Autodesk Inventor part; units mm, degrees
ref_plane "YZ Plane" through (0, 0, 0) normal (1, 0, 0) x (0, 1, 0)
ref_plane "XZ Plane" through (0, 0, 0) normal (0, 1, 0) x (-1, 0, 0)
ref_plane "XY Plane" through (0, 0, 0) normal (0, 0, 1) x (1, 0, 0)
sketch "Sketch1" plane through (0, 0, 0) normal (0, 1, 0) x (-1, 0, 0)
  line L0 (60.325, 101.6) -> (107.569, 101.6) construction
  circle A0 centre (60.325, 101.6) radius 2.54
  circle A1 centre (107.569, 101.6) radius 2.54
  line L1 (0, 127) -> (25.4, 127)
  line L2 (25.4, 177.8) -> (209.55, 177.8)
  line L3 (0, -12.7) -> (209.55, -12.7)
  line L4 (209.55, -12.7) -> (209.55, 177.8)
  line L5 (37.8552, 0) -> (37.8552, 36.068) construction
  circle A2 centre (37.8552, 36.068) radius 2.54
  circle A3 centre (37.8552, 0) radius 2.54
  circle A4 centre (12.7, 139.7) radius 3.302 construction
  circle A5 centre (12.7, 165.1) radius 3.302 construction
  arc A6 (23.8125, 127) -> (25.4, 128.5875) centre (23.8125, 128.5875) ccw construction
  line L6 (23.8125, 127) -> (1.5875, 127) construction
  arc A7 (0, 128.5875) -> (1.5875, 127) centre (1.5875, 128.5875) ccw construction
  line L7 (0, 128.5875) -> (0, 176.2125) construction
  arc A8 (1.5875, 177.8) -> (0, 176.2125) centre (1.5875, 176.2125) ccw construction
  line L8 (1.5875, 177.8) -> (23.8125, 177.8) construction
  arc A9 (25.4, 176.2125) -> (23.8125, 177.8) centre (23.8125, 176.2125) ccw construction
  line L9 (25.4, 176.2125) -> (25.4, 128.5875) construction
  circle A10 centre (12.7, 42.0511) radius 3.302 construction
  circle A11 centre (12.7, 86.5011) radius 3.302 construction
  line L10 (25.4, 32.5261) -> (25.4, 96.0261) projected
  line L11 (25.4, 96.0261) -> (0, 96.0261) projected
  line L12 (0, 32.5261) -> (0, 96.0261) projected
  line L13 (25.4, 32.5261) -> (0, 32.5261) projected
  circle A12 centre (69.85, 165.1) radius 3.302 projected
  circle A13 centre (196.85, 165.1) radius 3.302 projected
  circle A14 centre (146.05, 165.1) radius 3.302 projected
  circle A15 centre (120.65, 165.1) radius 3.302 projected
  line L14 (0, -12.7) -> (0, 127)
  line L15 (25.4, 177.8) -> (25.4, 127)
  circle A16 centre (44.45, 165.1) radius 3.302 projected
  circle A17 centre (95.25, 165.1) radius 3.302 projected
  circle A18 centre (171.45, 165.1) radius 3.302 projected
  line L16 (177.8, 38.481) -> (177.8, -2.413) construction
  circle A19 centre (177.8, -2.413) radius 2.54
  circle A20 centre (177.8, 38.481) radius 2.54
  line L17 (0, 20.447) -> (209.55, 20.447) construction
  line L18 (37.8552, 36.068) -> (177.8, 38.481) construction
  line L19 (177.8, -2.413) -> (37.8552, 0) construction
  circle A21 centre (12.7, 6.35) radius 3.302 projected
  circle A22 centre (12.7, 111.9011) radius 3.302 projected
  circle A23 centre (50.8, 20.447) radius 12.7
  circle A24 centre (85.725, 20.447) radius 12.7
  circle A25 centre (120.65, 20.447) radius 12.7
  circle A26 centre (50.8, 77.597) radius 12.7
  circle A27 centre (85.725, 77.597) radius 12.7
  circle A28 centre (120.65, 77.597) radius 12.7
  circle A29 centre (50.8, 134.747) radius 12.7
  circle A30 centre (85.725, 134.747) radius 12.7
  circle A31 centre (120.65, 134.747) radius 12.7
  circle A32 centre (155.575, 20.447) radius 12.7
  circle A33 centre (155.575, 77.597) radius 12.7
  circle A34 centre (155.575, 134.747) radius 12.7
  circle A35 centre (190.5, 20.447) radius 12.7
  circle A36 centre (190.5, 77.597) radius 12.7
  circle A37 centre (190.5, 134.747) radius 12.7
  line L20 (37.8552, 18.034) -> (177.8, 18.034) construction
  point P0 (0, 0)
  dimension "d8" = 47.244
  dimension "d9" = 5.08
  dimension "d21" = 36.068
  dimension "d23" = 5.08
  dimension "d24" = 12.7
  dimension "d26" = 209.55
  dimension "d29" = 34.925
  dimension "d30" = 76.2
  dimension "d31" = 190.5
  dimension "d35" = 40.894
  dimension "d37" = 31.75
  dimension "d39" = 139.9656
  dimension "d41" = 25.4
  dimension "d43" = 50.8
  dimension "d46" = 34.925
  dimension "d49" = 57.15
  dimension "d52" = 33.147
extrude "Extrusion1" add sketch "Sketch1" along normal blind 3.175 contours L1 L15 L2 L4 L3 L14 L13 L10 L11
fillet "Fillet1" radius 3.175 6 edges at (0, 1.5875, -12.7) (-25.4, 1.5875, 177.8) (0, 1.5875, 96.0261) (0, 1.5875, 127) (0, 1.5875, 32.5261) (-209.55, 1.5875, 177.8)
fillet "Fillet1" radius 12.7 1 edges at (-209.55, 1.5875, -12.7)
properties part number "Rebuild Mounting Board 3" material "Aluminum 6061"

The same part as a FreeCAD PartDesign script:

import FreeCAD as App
import Part
import Sketcher
Q = App.Units.Quantity


def edges_at(feature, points):
    """Names of the edges that pass closest to the given points."""
    edges = feature.Shape.Edges
    near = lambda p: min(range(len(edges)), key=lambda i: edges[i].distToShape(Part.Vertex(*p))[0])
    return sorted({f"Edge{near(p) + 1}" for p in points})

doc = App.newDocument("Part")
body = doc.addObject("PartDesign::Body", "Body")

sketch1 = body.newObject("Sketcher::SketchObject", "Sketch")
sketch1.AttachmentSupport = (doc.getObject("XZ_Plane"), [""])
sketch1.MapMode = "FlatFace"
sketch1.addGeometry([
    Part.LineSegment(App.Vector(-25.4, 127, 0), App.Vector(0, 127, 0)),
    Part.LineSegment(App.Vector(0, 127, 0), App.Vector(0, 96, 0)),
    Part.LineSegment(App.Vector(0, 96, 0), App.Vector(-25.4, 96, 0)),
    Part.LineSegment(App.Vector(-25.4, 96, 0), App.Vector(-25.4, 32.5, 0)),
    Part.LineSegment(App.Vector(-25.4, 32.5, 0), App.Vector(0, 32.5, 0)),
    Part.LineSegment(App.Vector(0, 32.5, 0), App.Vector(0, -12.7, 0)),
    Part.LineSegment(App.Vector(0, -12.7, 0), App.Vector(-209.6, -12.7, 0)),
    Part.LineSegment(App.Vector(-209.6, -12.7, 0), App.Vector(-209.6, 177.8, 0)),
    Part.LineSegment(App.Vector(-209.6, 177.8, 0), App.Vector(-25.4, 177.8, 0)),
    Part.LineSegment(App.Vector(-25.4, 177.8, 0), App.Vector(-25.4, 127, 0)),
    Part.Circle(App.Vector(-12.7, 6.3, 0), App.Vector(0, 0, 1), 3.3),
    Part.Circle(App.Vector(-37.9, 0, 0), App.Vector(0, 0, 1), 2.5),
    Part.Circle(App.Vector(-50.8, 20.4, 0), App.Vector(0, 0, 1), 12.7),
    Part.Circle(App.Vector(-85.7, 20.4, 0), App.Vector(0, 0, 1), 12.7),
    Part.Circle(App.Vector(-37.9, 36.1, 0), App.Vector(0, 0, 1), 2.5),
    Part.Circle(App.Vector(-50.8, 77.6, 0), App.Vector(0, 0, 1), 12.7),
    Part.Circle(App.Vector(-85.7, 77.6, 0), App.Vector(0, 0, 1), 12.7),
    Part.Circle(App.Vector(-120.7, 20.4, 0), App.Vector(0, 0, 1), 12.7),
    Part.Circle(App.Vector(-155.6, 20.4, 0), App.Vector(0, 0, 1), 12.7),
    Part.Circle(App.Vector(-177.8, -2.4, 0), App.Vector(0, 0, 1), 2.5),
    Part.Circle(App.Vector(-190.5, 20.4, 0), App.Vector(0, 0, 1), 12.7),
    Part.Circle(App.Vector(-120.7, 77.6, 0), App.Vector(0, 0, 1), 12.7),
    Part.Circle(App.Vector(-155.6, 77.6, 0), App.Vector(0, 0, 1), 12.7),
    Part.Circle(App.Vector(-177.8, 38.5, 0), App.Vector(0, 0, 1), 2.5),
    Part.Circle(App.Vector(-190.5, 77.6, 0), App.Vector(0, 0, 1), 12.7),
    Part.Circle(App.Vector(-12.7, 111.9, 0), App.Vector(0, 0, 1), 3.3),
    Part.Circle(App.Vector(-60.3, 101.6, 0), App.Vector(0, 0, 1), 2.5),
    Part.Circle(App.Vector(-50.8, 134.7, 0), App.Vector(0, 0, 1), 12.7),
    Part.Circle(App.Vector(-44.5, 165.1, 0), App.Vector(0, 0, 1), 3.3),
    Part.Circle(App.Vector(-85.7, 134.7, 0), App.Vector(0, 0, 1), 12.7),
    Part.Circle(App.Vector(-69.8, 165.1, 0), App.Vector(0, 0, 1), 3.3),
    Part.Circle(App.Vector(-95.2, 165.1, 0), App.Vector(0, 0, 1), 3.3),
    Part.Circle(App.Vector(-107.6, 101.6, 0), App.Vector(0, 0, 1), 2.5),
    Part.Circle(App.Vector(-120.7, 134.7, 0), App.Vector(0, 0, 1), 12.7),
    Part.Circle(App.Vector(-155.6, 134.7, 0), App.Vector(0, 0, 1), 12.7),
    Part.Circle(App.Vector(-120.7, 165.1, 0), App.Vector(0, 0, 1), 3.3),
    Part.Circle(App.Vector(-146.1, 165.1, 0), App.Vector(0, 0, 1), 3.3),
    Part.Circle(App.Vector(-190.5, 134.7, 0), App.Vector(0, 0, 1), 12.7),
    Part.Circle(App.Vector(-171.4, 165.1, 0), App.Vector(0, 0, 1), 3.3),
    Part.Circle(App.Vector(-196.8, 165.1, 0), App.Vector(0, 0, 1), 3.3),
], False)
sketch1.addConstraint([
    Sketcher.Constraint("Coincident", 0, 2, 1, 1),
    Sketcher.Constraint("Coincident", 1, 2, 2, 1),
    Sketcher.Constraint("Coincident", 2, 2, 3, 1),
    Sketcher.Constraint("Coincident", 3, 2, 4, 1),
    Sketcher.Constraint("Coincident", 4, 2, 5, 1),
    Sketcher.Constraint("Coincident", 5, 2, 6, 1),
    Sketcher.Constraint("Coincident", 6, 2, 7, 1),
    Sketcher.Constraint("Coincident", 7, 2, 8, 1),
    Sketcher.Constraint("Coincident", 8, 2, 9, 1),
    Sketcher.Constraint("Coincident", 9, 2, 0, 1),
    Sketcher.Constraint("Horizontal", 0),
    Sketcher.Constraint("Vertical", 1),
    Sketcher.Constraint("Horizontal", 2),
    Sketcher.Constraint("Vertical", 3),
    Sketcher.Constraint("Horizontal", 4),
    Sketcher.Constraint("Vertical", 5),
    Sketcher.Constraint("Horizontal", 6),
    Sketcher.Constraint("Vertical", 7),
    Sketcher.Constraint("Horizontal", 8),
    Sketcher.Constraint("Vertical", 9),
    Sketcher.Constraint("Equal", 12, 13),
    Sketcher.Constraint("Equal", 11, 14),
    Sketcher.Constraint("Equal", 13, 15),
    Sketcher.Constraint("Equal", 15, 16),
    Sketcher.Constraint("Equal", 16, 17),
    Sketcher.Constraint("Equal", 17, 18),
    Sketcher.Constraint("Equal", 14, 19),
    Sketcher.Constraint("Equal", 18, 20),
    Sketcher.Constraint("Equal", 20, 21),
    Sketcher.Constraint("Equal", 21, 22),
    Sketcher.Constraint("Equal", 19, 23),
    Sketcher.Constraint("Equal", 22, 24),
    Sketcher.Constraint("Equal", 10, 25),
    Sketcher.Constraint("Equal", 23, 26),
    Sketcher.Constraint("Equal", 24, 27),
    Sketcher.Constraint("Equal", 25, 28),
    Sketcher.Constraint("Equal", 27, 29),
    Sketcher.Constraint("Equal", 28, 30),
    Sketcher.Constraint("Equal", 30, 31),
    Sketcher.Constraint("Equal", 26, 32),
    Sketcher.Constraint("Equal", 29, 33),
    Sketcher.Constraint("Equal", 33, 34),
    Sketcher.Constraint("Equal", 31, 35),
    Sketcher.Constraint("Equal", 35, 36),
    Sketcher.Constraint("Equal", 34, 37),
    Sketcher.Constraint("Equal", 36, 38),
    Sketcher.Constraint("Equal", 38, 39),
    Sketcher.Constraint("PointOnObject", 11, 3, -1),
    Sketcher.Constraint("PointOnObject", 0, 2, -2),
    Sketcher.Constraint("PointOnObject", 4, 2, -2),
    Sketcher.Constraint("Horizontal", 12, 3, 13, 3),
    Sketcher.Constraint("Horizontal", 15, 3, 16, 3),
    Sketcher.Constraint("Horizontal", 13, 3, 17, 3),
    Sketcher.Constraint("Horizontal", 17, 3, 18, 3),
    Sketcher.Constraint("Horizontal", 18, 3, 20, 3),
    Sketcher.Constraint("Horizontal", 16, 3, 21, 3),
    Sketcher.Constraint("Horizontal", 21, 3, 22, 3),
    Sketcher.Constraint("Horizontal", 22, 3, 24, 3),
    Sketcher.Constraint("Horizontal", 27, 3, 29, 3),
    Sketcher.Constraint("Horizontal", 28, 3, 30, 3),
    Sketcher.Constraint("Horizontal", 30, 3, 31, 3),
    Sketcher.Constraint("Horizontal", 26, 3, 32, 3),
    Sketcher.Constraint("Horizontal", 29, 3, 33, 3),
    Sketcher.Constraint("Horizontal", 33, 3, 34, 3),
    Sketcher.Constraint("Horizontal", 31, 3, 35, 3),
    Sketcher.Constraint("Horizontal", 35, 3, 36, 3),
    Sketcher.Constraint("Horizontal", 34, 3, 37, 3),
    Sketcher.Constraint("Horizontal", 36, 3, 38, 3),
    Sketcher.Constraint("Horizontal", 38, 3, 39, 3),
    Sketcher.Constraint("Vertical", 11, 3, 14, 3),
    Sketcher.Constraint("Vertical", 12, 3, 15, 3),
    Sketcher.Constraint("Vertical", 13, 3, 16, 3),
    Sketcher.Constraint("Vertical", 17, 3, 21, 3),
    Sketcher.Constraint("Vertical", 18, 3, 22, 3),
    Sketcher.Constraint("Vertical", 19, 3, 23, 3),
    Sketcher.Constraint("Vertical", 20, 3, 24, 3),
    Sketcher.Constraint("Vertical", 10, 3, 25, 3),
    Sketcher.Constraint("Vertical", 15, 3, 27, 3),
    Sketcher.Constraint("Vertical", 16, 3, 29, 3),
    Sketcher.Constraint("Vertical", 21, 3, 33, 3),
    Sketcher.Constraint("Vertical", 22, 3, 34, 3),
    Sketcher.Constraint("Vertical", 33, 3, 35, 3),
    Sketcher.Constraint("Vertical", 24, 3, 37, 3),
    Sketcher.Constraint("Vertical", 3, 2, 8, 2),
    Sketcher.Constraint("Diameter", 12, Q("1 in")),
    Sketcher.Constraint("Diameter", 11, Q("0.2 in")),
    Sketcher.Constraint("DistanceX", 0, 1, 0, 2, Q("1 in")),
    Sketcher.Constraint("DistanceY", 9, 2, 9, 1, Q("2 in")),
    Sketcher.Constraint("DistanceY", 7, 1, 7, 2, Q("7.5 in")),
    Sketcher.Constraint("DistanceX", 12, 3, -1, 1, Q("2 in")),
    Sketcher.Constraint("DistanceX", 16, 3, 26, 3, Q("1 in")),
    Sketcher.Constraint("DistanceX", 30, 3, 28, 3, Q("1 in")),
    Sketcher.Constraint("DistanceX", 31, 3, 30, 3, Q("1 in")),
    Sketcher.Constraint("DistanceX", 33, 3, 31, 3, Q("1 in")),
    Sketcher.Constraint("DistanceX", 36, 3, 35, 3, Q("1 in")),
    Sketcher.Constraint("DistanceX", 38, 3, 36, 3, Q("1 in")),
    Sketcher.Constraint("DistanceX", 39, 3, 38, 3, Q("1 in")),
    Sketcher.Constraint("DistanceY", 26, 3, 0, 2, Q("1 in")),
    Sketcher.Constraint("DistanceX", 6, 2, 6, 1, Q("8.25 in")),
    Sketcher.Constraint("DistanceX", 10, 3, -1, 1, Q("0.5 in")),
    Sketcher.Constraint("DistanceX", 20, 3, -1, 1, Q("7.5 in")),
    Sketcher.Constraint("DistanceY", 5, 2, -1, 1, Q("0.5 in")),
    Sketcher.Constraint("DistanceX", 20, 3, 19, 3, Q("0.5 in")),
    Sketcher.Constraint("DistanceX", 7, 2, 39, 3, Q("0.5 in")),
    Sketcher.Constraint("DistanceY", 39, 3, 7, 2, Q("0.5 in")),
    Sketcher.Constraint("Diameter", 10, Q("0.26 in")),
    Sketcher.Constraint("DistanceY", -1, 1, 14, 3, Q("1.42 in")),
    Sketcher.Constraint("DistanceY", 12, 3, 15, 3, Q("2.25 in")),
    Sketcher.Constraint("DistanceY", 19, 3, 23, 3, Q("1.61 in")),
    Sketcher.Constraint("DistanceY", 15, 3, 27, 3, Q("2.25 in")),
    Sketcher.Constraint("DistanceX", 32, 3, 26, 3, Q("1.86 in")),
    Sketcher.Constraint("DistanceY", 3, 2, 3, 1, Q("2.5 in")),
    Sketcher.Constraint("DistanceX", 13, 3, 12, 3, Q("1.375 in")),
    Sketcher.Constraint("DistanceX", 18, 3, 17, 3, Q("1.375 in")),
    Sketcher.Constraint("DistanceY", 26, 3, 27, 3, Q("1.305 in")),
    Sketcher.Constraint("DistanceY", 19, 3, 18, 3, Q("0.9 in")),
    Sketcher.Constraint("DistanceY", -1, 1, 10, 3, Q("0.25 in")),
    Sketcher.Constraint("DistanceY", 1, 2, 25, 3, Q("0.625 in")),
    Sketcher.Constraint("DistanceY", 1, 2, 1, 1, 30.974),
    Sketcher.Constraint("DistanceX", 11, 3, -1, 1, 37.8552),
])
pad1 = body.newObject("PartDesign::Pad", "Pad")
pad1.Profile = sketch1
pad1.Length = Q("0.125 in")
pad1.Reversed = True
doc.recompute()

fillet = body.newObject("PartDesign::Fillet", "Fillet")
fillet.Base = (pad1, edges_at(pad1, [
    (0, 1.587, -12.7),
    (-25.4, 1.587, 177.8),
    (0, 1.587, 96.026),
    (0, 1.587, 127),
    (0, 1.587, 32.526),
    (-209.55, 1.587, 177.8),
]))
fillet.Radius = Q("0.125 in")
doc.recompute()

fillet2 = body.newObject("PartDesign::Fillet", "Fillet001")
fillet2.Base = (fillet, edges_at(fillet, [(-209.55, 1.587, -12.7)]))
fillet2.Radius = Q("0.5 in")

doc.recompute()
